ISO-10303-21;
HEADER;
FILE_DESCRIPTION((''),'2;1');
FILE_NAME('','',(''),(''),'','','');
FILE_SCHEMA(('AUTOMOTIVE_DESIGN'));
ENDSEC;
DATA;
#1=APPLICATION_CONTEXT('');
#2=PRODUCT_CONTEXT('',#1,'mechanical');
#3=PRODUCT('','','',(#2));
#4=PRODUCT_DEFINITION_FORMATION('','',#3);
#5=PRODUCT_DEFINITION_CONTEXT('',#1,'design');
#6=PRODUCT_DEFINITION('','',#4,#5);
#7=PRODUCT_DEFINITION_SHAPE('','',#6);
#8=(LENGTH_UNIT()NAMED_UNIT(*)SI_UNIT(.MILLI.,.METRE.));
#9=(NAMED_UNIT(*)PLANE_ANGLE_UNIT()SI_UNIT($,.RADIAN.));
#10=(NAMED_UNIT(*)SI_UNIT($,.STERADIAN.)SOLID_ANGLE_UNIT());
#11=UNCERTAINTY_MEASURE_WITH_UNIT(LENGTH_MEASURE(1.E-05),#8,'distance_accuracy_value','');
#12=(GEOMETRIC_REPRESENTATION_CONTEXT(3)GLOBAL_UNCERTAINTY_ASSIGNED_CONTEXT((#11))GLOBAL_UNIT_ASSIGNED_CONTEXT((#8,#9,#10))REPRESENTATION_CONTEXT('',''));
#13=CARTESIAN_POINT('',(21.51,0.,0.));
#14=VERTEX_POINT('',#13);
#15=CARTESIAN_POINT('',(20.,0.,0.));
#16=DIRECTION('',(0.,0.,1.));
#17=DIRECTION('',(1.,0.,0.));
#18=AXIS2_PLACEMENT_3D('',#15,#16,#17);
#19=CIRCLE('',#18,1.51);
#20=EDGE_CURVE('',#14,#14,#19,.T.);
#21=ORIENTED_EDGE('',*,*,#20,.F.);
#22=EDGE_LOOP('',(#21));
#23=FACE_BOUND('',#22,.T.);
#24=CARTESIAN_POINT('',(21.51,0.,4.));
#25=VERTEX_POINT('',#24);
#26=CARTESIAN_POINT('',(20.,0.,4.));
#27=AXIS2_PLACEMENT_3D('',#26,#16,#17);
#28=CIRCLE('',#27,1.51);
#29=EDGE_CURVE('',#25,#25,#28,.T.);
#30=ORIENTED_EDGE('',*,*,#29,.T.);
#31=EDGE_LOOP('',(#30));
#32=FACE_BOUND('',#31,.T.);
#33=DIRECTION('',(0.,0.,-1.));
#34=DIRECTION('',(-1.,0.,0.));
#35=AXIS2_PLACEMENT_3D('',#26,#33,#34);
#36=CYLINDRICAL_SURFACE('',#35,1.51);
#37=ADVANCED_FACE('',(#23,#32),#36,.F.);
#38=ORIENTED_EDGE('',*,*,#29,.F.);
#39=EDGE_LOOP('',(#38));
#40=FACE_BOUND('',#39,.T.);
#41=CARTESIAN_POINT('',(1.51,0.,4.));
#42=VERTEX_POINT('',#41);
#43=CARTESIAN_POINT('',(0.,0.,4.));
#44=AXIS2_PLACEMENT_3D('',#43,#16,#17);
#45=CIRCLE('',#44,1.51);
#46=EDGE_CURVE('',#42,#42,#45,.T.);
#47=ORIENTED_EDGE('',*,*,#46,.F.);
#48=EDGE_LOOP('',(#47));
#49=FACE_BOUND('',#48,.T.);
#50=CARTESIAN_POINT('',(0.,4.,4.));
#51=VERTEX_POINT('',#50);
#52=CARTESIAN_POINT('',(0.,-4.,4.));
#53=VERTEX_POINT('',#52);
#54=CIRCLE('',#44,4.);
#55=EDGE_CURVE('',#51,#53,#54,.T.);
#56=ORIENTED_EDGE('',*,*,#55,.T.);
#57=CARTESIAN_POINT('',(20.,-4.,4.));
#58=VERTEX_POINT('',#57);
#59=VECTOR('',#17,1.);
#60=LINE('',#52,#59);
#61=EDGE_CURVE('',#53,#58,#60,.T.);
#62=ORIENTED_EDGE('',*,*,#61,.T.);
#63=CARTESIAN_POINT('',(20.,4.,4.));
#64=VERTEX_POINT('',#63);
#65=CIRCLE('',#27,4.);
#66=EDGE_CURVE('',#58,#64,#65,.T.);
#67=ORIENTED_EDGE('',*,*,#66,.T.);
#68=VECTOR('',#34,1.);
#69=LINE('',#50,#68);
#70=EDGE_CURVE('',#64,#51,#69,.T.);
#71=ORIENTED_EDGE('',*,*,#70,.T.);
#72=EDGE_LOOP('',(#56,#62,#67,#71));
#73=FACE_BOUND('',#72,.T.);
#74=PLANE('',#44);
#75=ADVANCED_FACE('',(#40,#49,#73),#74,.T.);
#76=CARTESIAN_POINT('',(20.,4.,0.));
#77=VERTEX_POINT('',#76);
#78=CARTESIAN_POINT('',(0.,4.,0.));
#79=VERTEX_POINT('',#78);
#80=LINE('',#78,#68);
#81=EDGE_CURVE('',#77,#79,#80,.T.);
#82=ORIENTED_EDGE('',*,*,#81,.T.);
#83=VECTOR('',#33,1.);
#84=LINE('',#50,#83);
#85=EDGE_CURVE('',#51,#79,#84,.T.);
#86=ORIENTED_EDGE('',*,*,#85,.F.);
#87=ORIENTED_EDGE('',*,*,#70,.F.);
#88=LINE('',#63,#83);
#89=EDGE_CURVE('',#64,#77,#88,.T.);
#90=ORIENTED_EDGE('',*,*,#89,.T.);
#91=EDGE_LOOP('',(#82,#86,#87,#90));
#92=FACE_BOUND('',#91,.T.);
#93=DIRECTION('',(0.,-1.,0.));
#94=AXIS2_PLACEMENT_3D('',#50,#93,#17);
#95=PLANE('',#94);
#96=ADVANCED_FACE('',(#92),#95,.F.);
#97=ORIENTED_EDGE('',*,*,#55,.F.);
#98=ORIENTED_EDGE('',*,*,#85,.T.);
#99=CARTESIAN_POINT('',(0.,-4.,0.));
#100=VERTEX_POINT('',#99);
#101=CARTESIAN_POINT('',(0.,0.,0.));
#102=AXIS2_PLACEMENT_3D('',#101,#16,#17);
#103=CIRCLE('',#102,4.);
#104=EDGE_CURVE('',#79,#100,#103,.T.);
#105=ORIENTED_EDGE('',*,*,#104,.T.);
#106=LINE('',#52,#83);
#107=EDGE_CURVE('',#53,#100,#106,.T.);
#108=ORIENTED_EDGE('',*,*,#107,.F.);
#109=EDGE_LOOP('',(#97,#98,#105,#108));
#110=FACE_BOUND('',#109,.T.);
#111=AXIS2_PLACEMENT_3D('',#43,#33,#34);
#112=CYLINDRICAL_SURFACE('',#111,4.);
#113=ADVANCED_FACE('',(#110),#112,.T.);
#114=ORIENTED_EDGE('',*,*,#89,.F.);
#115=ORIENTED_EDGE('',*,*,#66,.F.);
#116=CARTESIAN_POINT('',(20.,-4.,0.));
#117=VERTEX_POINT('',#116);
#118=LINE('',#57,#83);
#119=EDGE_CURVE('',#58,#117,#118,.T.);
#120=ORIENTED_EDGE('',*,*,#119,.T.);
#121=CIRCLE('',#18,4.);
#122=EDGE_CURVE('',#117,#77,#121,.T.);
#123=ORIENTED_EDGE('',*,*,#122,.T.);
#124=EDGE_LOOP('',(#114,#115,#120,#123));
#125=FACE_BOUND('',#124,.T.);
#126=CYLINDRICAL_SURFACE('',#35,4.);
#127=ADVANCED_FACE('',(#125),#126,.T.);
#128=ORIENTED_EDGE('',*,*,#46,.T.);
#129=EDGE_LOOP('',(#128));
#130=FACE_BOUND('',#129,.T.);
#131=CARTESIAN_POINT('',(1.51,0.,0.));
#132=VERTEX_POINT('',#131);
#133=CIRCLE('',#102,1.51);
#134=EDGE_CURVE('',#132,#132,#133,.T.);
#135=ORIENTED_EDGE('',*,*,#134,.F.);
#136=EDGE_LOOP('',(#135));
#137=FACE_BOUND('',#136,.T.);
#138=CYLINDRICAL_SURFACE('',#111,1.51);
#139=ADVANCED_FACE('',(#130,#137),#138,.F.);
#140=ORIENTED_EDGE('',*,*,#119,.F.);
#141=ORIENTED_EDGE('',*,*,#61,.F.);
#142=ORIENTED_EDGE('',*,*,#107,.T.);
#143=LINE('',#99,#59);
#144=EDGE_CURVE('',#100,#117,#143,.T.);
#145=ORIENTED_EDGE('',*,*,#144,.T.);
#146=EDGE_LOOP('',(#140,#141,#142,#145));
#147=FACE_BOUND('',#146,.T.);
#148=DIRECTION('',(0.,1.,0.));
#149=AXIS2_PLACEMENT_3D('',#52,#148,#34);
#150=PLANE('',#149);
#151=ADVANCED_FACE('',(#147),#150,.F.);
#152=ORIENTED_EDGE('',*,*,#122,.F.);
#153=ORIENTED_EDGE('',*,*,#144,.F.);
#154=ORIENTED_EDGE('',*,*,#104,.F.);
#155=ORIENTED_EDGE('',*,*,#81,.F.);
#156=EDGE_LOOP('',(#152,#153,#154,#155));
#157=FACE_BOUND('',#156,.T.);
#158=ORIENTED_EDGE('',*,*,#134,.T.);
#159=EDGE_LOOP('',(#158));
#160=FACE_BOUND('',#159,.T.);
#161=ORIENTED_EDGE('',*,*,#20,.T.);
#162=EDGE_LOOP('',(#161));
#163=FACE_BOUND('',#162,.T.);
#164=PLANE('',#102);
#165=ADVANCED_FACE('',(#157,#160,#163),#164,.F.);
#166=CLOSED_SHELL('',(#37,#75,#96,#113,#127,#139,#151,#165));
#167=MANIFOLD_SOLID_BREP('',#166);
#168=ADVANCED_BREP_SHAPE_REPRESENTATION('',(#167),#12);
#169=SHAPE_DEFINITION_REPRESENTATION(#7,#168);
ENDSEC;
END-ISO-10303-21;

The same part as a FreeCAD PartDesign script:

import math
import FreeCAD as App
import Part
import Sketcher

V = App.Vector
Q = App.Units.Quantity

doc = App.newDocument("Part")
body = doc.addObject("PartDesign::Body", "Body")

# Sketch on XY plane
sketch1 = doc.addObject("Sketcher::SketchObject", "Sketch")
body.addObject(sketch1)
sketch1.AttachmentSupport = (doc.XY_Plane, [""])
sketch1.MapMode = "FlatFace"
sketch1.addGeometry(Part.LineSegment(V(20, 4, 0), V(0, 4, 0)), False)
sketch1.addGeometry(Part.ArcOfCircle(Part.Circle(V(0, 0, 0), V(0, 0, 1), 4), math.radians(90), math.radians(270)), False)
sketch1.addGeometry(Part.LineSegment(V(0, -4, 0), V(20, -4, 0)), False)
sketch1.addGeometry(Part.ArcOfCircle(Part.Circle(V(20, 0, 0), V(0, 0, 1), 4), math.radians(-90), math.radians(90)), False)
sketch1.addGeometry(Part.Circle(V(20, 0, 0), V(0, 0, 1), 1.51), False)
sketch1.addGeometry(Part.Circle(V(0, 0, 0), V(0, 0, 1), 1.51), False)
sketch1.addConstraint(Sketcher.Constraint("Tangent", 0, 2, 1, 1))
sketch1.addConstraint(Sketcher.Constraint("Tangent", 1, 2, 2, 1))
sketch1.addConstraint(Sketcher.Constraint("Tangent", 2, 2, 3, 1))
sketch1.addConstraint(Sketcher.Constraint("Tangent", 3, 2, 0, 1))
sketch1.addConstraint(Sketcher.Constraint("Horizontal", 0))
sketch1.addConstraint(Sketcher.Constraint("Horizontal", 2))
sketch1.addConstraint(Sketcher.Constraint("Coincident", 1, 3, -1, 1))
sketch1.addConstraint(Sketcher.Constraint("Coincident", 5, 3, -1, 1))
sketch1.addConstraint(Sketcher.Constraint("Coincident", 4, 3, 3, 3))
sketch1.addConstraint(Sketcher.Constraint("Equal", 4, 5))
sketch1.addConstraint(Sketcher.Constraint("Radius", 1, Q("4 mm")))
sketch1.addConstraint(Sketcher.Constraint("Diameter", 4, Q("3.02 mm")))
sketch1.addConstraint(Sketcher.Constraint("DistanceX", 0, 2, 0, 1, Q("20 mm")))
pad1 = doc.addObject("PartDesign::Pad", "Pad")
body.addObject(pad1)
pad1.Profile = sketch1
pad1.Length = 4

doc.recompute()
